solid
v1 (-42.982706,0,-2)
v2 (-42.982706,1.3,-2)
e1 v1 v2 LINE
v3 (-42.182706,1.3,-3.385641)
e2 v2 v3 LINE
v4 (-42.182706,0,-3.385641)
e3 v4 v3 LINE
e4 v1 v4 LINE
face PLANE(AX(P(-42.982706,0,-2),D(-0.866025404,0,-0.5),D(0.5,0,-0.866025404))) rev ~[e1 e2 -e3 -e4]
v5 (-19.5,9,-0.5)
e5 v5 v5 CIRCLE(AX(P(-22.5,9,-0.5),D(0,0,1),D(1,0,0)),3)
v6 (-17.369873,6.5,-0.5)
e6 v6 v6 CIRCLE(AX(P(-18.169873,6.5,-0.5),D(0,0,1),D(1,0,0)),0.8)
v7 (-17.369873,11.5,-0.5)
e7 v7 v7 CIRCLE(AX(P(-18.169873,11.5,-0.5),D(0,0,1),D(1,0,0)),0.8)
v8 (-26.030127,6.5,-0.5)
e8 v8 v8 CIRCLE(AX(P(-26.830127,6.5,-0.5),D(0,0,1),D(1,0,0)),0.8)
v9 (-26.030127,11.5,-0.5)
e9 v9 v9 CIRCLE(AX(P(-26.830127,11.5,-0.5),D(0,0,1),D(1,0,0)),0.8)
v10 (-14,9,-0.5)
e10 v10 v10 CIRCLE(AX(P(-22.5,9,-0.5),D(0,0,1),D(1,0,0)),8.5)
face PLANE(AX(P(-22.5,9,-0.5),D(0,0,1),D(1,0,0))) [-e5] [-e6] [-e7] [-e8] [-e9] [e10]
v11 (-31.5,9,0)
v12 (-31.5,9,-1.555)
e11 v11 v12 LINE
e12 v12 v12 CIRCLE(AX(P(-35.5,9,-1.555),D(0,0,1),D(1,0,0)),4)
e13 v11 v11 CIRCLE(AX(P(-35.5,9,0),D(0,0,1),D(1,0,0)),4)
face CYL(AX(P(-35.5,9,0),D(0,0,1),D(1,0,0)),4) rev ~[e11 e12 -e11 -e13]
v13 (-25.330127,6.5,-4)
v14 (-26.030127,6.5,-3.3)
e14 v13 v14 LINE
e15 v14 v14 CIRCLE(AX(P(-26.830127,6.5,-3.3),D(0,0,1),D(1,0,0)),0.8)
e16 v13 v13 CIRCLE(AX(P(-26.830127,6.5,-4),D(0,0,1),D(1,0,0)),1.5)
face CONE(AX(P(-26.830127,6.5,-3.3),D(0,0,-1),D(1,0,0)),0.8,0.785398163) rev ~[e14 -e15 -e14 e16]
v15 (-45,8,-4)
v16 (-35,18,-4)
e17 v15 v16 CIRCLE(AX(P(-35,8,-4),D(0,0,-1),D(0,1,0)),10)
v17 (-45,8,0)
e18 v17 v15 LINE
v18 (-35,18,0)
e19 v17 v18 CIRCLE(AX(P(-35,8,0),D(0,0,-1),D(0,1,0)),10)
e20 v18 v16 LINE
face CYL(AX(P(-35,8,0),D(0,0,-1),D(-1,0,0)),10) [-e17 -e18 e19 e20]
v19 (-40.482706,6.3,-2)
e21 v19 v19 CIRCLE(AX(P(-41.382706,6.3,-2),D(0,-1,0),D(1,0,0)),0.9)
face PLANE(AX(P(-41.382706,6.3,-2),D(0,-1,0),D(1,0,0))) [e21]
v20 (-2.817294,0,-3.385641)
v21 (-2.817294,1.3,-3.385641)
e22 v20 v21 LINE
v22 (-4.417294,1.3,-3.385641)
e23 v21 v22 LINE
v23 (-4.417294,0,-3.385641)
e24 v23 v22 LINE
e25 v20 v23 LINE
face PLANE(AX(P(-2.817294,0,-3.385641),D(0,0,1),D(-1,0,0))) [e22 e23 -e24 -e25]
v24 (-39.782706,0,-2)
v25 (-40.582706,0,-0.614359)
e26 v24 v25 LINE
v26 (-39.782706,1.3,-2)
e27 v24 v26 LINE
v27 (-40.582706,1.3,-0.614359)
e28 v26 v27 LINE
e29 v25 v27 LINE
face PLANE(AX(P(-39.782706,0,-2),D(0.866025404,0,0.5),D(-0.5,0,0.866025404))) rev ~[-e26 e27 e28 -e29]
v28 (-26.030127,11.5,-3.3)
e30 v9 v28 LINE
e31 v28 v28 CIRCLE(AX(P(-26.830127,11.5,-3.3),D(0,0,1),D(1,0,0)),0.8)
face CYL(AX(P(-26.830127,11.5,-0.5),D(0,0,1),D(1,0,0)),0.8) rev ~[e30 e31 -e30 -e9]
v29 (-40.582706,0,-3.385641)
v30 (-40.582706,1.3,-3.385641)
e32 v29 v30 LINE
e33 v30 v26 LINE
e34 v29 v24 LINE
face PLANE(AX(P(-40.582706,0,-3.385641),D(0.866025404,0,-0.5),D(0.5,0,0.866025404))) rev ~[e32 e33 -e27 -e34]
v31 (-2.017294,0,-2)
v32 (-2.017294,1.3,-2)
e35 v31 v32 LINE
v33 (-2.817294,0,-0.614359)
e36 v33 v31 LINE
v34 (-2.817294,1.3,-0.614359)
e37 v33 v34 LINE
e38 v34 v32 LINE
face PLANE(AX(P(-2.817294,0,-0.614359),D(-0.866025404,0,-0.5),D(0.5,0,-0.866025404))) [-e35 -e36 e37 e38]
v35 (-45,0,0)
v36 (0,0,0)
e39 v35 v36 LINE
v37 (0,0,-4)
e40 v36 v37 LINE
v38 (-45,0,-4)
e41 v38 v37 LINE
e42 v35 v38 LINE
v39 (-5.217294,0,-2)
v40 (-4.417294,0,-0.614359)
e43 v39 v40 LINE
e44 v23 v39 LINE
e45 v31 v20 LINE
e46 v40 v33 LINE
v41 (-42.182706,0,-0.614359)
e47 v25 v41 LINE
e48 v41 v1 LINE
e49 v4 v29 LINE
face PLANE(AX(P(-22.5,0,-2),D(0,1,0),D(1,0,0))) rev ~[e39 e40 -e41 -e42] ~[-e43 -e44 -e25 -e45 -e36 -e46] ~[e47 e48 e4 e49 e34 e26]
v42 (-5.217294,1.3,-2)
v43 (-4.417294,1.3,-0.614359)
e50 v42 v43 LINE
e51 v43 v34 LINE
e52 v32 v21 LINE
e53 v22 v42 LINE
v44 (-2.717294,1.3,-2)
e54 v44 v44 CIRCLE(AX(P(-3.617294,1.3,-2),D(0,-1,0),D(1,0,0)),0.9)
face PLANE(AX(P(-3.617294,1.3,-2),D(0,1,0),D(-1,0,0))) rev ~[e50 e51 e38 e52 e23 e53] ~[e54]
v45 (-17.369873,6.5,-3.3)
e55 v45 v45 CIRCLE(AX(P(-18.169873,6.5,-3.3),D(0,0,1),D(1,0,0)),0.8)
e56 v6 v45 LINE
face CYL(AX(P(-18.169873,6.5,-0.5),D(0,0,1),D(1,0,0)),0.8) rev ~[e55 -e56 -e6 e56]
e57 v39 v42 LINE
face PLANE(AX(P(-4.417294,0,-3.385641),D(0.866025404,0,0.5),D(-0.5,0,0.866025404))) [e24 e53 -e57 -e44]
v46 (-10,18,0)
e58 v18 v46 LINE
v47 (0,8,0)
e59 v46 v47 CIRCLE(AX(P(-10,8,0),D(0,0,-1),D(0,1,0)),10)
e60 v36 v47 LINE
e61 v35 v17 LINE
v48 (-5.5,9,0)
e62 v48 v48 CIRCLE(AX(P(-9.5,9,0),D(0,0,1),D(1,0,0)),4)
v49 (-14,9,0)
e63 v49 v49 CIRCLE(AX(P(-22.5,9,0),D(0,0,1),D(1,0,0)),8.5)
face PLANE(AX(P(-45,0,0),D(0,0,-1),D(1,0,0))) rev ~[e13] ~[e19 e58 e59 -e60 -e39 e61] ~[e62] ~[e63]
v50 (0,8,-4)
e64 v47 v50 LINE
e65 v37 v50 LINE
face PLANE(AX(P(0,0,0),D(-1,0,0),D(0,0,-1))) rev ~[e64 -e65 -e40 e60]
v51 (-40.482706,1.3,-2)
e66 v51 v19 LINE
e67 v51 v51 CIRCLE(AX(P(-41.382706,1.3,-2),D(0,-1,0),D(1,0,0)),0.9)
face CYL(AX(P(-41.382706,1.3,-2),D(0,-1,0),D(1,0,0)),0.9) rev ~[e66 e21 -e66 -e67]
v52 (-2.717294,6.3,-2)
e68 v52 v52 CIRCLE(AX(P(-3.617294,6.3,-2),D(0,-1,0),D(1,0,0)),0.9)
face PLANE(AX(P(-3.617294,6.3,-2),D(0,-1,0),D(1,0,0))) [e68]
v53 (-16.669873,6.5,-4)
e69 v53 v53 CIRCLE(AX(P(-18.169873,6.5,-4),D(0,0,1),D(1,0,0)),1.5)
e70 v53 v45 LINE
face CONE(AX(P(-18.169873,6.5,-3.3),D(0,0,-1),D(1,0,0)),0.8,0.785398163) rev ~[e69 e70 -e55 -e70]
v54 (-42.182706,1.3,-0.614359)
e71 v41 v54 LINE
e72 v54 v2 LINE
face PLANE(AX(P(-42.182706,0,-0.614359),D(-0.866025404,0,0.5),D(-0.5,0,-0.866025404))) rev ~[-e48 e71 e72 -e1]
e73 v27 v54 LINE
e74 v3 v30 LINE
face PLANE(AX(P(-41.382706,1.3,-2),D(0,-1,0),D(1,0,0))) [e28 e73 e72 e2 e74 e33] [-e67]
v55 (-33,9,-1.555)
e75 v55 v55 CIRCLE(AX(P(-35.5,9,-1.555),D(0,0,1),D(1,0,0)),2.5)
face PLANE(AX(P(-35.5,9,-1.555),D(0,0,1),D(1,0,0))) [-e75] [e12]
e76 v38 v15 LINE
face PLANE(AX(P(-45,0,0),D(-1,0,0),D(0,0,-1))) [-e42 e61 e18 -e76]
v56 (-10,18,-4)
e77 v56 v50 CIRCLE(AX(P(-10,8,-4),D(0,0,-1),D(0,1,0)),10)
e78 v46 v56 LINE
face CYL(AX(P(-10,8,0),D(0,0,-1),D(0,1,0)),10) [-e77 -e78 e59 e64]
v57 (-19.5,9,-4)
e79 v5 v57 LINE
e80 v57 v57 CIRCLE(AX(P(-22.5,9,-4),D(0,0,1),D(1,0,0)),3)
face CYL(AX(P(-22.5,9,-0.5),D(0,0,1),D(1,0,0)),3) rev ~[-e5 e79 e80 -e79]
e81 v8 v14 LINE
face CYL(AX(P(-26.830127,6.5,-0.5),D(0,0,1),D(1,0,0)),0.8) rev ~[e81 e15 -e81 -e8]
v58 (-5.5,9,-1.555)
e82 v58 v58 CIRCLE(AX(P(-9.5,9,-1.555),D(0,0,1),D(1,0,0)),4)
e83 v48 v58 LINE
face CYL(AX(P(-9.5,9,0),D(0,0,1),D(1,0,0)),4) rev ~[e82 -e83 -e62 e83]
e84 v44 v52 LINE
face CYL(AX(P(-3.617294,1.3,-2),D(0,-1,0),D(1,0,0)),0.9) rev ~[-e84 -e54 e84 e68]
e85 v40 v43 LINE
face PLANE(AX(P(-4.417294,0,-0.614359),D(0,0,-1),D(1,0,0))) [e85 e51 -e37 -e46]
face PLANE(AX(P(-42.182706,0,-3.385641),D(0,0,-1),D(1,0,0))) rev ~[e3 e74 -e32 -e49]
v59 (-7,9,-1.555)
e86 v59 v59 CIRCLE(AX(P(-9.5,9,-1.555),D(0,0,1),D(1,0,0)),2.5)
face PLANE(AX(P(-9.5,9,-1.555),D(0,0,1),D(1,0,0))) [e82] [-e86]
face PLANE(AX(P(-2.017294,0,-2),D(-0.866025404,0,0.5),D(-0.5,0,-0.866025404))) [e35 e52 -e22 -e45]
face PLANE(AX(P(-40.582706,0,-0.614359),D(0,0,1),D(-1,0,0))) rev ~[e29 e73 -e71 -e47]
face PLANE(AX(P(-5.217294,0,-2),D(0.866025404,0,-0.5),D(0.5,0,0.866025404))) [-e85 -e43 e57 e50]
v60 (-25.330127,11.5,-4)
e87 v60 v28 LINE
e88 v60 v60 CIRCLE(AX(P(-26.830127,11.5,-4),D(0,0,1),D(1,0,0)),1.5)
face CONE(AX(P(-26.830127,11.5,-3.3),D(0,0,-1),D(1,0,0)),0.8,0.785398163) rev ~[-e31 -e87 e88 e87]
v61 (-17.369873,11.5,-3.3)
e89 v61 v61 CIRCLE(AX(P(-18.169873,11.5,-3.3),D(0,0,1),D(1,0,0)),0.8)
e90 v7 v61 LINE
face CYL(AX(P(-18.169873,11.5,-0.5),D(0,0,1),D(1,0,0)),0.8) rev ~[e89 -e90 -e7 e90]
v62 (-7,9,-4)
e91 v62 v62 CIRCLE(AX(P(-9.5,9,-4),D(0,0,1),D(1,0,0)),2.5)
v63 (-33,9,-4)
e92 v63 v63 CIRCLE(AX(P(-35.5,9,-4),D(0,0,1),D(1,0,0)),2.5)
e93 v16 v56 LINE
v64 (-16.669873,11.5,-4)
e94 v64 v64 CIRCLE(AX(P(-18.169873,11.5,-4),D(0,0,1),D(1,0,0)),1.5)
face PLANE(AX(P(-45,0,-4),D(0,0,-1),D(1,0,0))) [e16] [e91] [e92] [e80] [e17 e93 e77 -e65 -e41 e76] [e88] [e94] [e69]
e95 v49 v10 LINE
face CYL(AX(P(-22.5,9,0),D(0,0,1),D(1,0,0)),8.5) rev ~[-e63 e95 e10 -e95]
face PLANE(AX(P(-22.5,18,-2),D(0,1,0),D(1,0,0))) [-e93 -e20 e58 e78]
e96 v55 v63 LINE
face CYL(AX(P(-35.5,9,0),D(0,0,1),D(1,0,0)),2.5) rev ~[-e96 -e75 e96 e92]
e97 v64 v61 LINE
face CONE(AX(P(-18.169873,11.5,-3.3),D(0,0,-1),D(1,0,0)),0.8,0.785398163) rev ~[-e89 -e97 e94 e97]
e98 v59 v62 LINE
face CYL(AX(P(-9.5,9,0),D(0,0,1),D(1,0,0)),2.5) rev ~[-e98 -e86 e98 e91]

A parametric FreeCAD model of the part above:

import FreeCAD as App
import Part
import Sketcher
from FreeCAD import Vector
Q = App.Units.Quantity


def edges_at(feature, points):
    """Names of the edges that pass closest to the given points."""
    edges = feature.Shape.Edges
    near = lambda p: min(range(len(edges)), key=lambda i: edges[i].distToShape(Part.Vertex(*p))[0])
    return sorted({f"Edge{near(p) + 1}" for p in points})

doc = App.newDocument("Part")
body = doc.addObject("PartDesign::Body", "Body")

sketch1 = body.newObject("Sketcher::SketchObject", "Sketch")
sketch1.AttachmentSupport = (doc.getObject("XZ_Plane"), [""])
sketch1.MapMode = "FlatFace"
sketch1.addGeometry([
    Part.LineSegment(Vector(-45, -4, 0), Vector(-45, 0, 0)),
    Part.LineSegment(Vector(-45, 0, 0), Vector(0, 0, 0)),
    Part.LineSegment(Vector(0, 0, 0), Vector(0, -4, 0)),
    Part.LineSegment(Vector(0, -4, 0), Vector(-45, -4, 0)),
], False)
sketch1.addConstraint([
    Sketcher.Constraint("Coincident", 0, 2, 1, 1),
    Sketcher.Constraint("Coincident", 1, 2, 2, 1),
    Sketcher.Constraint("Coincident", 2, 2, 3, 1),
    Sketcher.Constraint("Coincident", 3, 2, 0, 1),
    Sketcher.Constraint("Vertical", 0),
    Sketcher.Constraint("Horizontal", 1),
    Sketcher.Constraint("Vertical", 2),
    Sketcher.Constraint("Horizontal", 3),
    Sketcher.Constraint("Coincident", 1, 2, -1, 1),
    Sketcher.Constraint("DistanceX", 1, 1, 1, 2, 45.0),
    Sketcher.Constraint("DistanceY", 0, 1, 0, 2, 4.0),
])
pad1 = body.newObject("PartDesign::Pad", "Pad")
pad1.Profile = sketch1
pad1.Length = 18
pad1.Reversed = True

sketch2 = body.newObject("Sketcher::SketchObject", "Sketch001")
sketch2.AttachmentSupport = (doc.getObject("XY_Plane"), [""])
sketch2.MapMode = "FlatFace"
sketch2.addGeometry(Part.Circle(Vector(-22, 9, 0), Vector(0, 0, 1), 8), False)
sketch2.addConstraint([
    Sketcher.Constraint("Diameter", 0, 17.0),
    Sketcher.Constraint("DistanceY", -1, 1, 0, 3, 9.0),
    Sketcher.Constraint("DistanceX", 0, 3, -1, 1, 22.5),
])
pocket1 = body.newObject("PartDesign::Pocket", "Pocket")
pocket1.Profile = sketch2
pocket1.Length = 0.5

sketch3 = body.newObject("Sketcher::SketchObject", "Sketch002")
sketch3.AttachmentSupport = (doc.getObject("XY_Plane"), [""])
sketch3.MapMode = "FlatFace"
sketch3.AttachmentOffset = App.Placement(Vector(0, 0, -0.5), App.Rotation())
sketch3.addGeometry(Part.Circle(Vector(-22.5, 9, 0), Vector(0, 0, 1), 3), False)
sketch3.addConstraint([
    Sketcher.Constraint("Diameter", 0, 6.0),
    Sketcher.Constraint("DistanceY", -1, 1, 0, 3, 9.0),
    Sketcher.Constraint("DistanceX", 0, 3, -1, 1, 22.5),
])
pocket2 = body.newObject("PartDesign::Pocket", "Pocket001")
pocket2.Profile = sketch3
pocket2.Type = "ThroughAll"

sketch4 = body.newObject("Sketcher::SketchObject", "Sketch003")
sketch4.AttachmentSupport = (doc.getObject("XY_Plane"), [""])
sketch4.MapMode = "FlatFace"
sketch4.addGeometry([
    Part.Circle(Vector(-35.5, 9, 0), Vector(0, 0, 1), 2.5),
    Part.Circle(Vector(-9.5, 9, 0), Vector(0, 0, 1), 2.5),
], False)
sketch4.addConstraint([
    Sketcher.Constraint("Equal", 0, 1),
    Sketcher.Constraint("Horizontal", 0, 3, 1, 3),
    Sketcher.Constraint("Diameter", 0, 5.0),
    Sketcher.Constraint("DistanceY", -1, 1, 0, 3, 9.0),
    Sketcher.Constraint("DistanceX", 0, 3, 1, 3, 26.0),
    Sketcher.Constraint("DistanceX", 0, 3, -1, 1, 35.5),
])
pocket3 = body.newObject("PartDesign::Pocket", "Pocket002")
pocket3.Profile = sketch4
pocket3.Type = "ThroughAll"

sketch5 = body.newObject("Sketcher::SketchObject", "Sketch004")
sketch5.AttachmentSupport = (doc.getObject("XY_Plane"), [""])
sketch5.MapMode = "FlatFace"
sketch5.AttachmentOffset = App.Placement(Vector(0, 0, -0.5), App.Rotation())
sketch5.addGeometry([
    Part.Circle(Vector(-18.2, 11.5, 0), Vector(0, 0, 1), 0.8),
    Part.Circle(Vector(-18.2, 6.5, 0), Vector(0, 0, 1), 0.8),
    Part.Circle(Vector(-26.8, 6.5, 0), Vector(0, 0, 1), 0.8),
    Part.Circle(Vector(-26.8, 11.5, 0), Vector(0, 0, 1), 0.8),
], False)
sketch5.addConstraint([
    Sketcher.Constraint("Equal", 0, 1),
    Sketcher.Constraint("Equal", 1, 2),
    Sketcher.Constraint("Equal", 2, 3),
    Sketcher.Constraint("Horizontal", 1, 3, 2, 3),
    Sketcher.Constraint("Horizontal", 0, 3, 3, 3),
    Sketcher.Constraint("Vertical", 0, 3, 1, 3),
    Sketcher.Constraint("Vertical", 2, 3, 3, 3),
    Sketcher.Constraint("Diameter", 0, 1.6),
    Sketcher.Constraint("DistanceY", 1, 3, 0, 3, 5.0),
    Sketcher.Constraint("DistanceY", -1, 1, 0, 3, 11.5),
    Sketcher.Constraint("DistanceX", 0, 3, -1, 1, 18.169873),
    Sketcher.Constraint("DistanceX", 2, 3, -1, 1, 26.830127),
])
pocket4 = body.newObject("PartDesign::Pocket", "Pocket003")
pocket4.Profile = sketch5
pocket4.Type = "ThroughAll"
doc.recompute()

fillet = body.newObject("PartDesign::Fillet", "Fillet")
fillet.Base = (pocket4, edges_at(pocket4, [(-45, 18, -2), (0, 18, -2)]))
fillet.Radius = 10

sketch6 = body.newObject("Sketcher::SketchObject", "Sketch005")
sketch6.AttachmentSupport = (doc.getObject("XY_Plane"), [""])
sketch6.MapMode = "FlatFace"
sketch6.addGeometry([
    Part.Circle(Vector(-35.5, 9, 0), Vector(0, 0, 1), 4),
    Part.Circle(Vector(-9.5, 9, 0), Vector(0, 0, 1), 4),
], False)
sketch6.addConstraint([
    Sketcher.Constraint("Equal", 0, 1),
    Sketcher.Constraint("Horizontal", 0, 3, 1, 3),
    Sketcher.Constraint("Diameter", 0, 8.0),
    Sketcher.Constraint("DistanceY", -1, 1, 0, 3, 9.0),
    Sketcher.Constraint("DistanceX", 0, 3, 1, 3, 26.0),
    Sketcher.Constraint("DistanceX", 0, 3, -1, 1, 35.5),
])
pocket5 = body.newObject("PartDesign::Pocket", "Pocket004")
pocket5.Profile = sketch6
pocket5.Length = 1.555

sketch7 = body.newObject("Sketcher::SketchObject", "Sketch006")
sketch7.AttachmentSupport = (doc.getObject("XZ_Plane"), [""])
sketch7.MapMode = "FlatFace"
sketch7.addGeometry([
    Part.LineSegment(Vector(-4.4, -0.6, 0), Vector(-5.2, -2, 0)),
    Part.LineSegment(Vector(-5.2, -2, 0), Vector(-4.4, -3.4, 0)),
    Part.LineSegment(Vector(-4.4, -3.4, 0), Vector(-2.8, -3.4, 0)),
    Part.LineSegment(Vector(-2.8, -3.4, 0), Vector(-2, -2, 0)),
    Part.LineSegment(Vector(-2, -2, 0), Vector(-2.8, -0.6, 0)),
    Part.LineSegment(Vector(-2.8, -0.6, 0), Vector(-4.4, -0.6, 0)),
    Part.LineSegment(Vector(-39.8, -2, 0), Vector(-40.6, -0.6, 0)),
    Part.LineSegment(Vector(-40.6, -0.6, 0), Vector(-42.2, -0.6, 0)),
    Part.LineSegment(Vector(-42.2, -0.6, 0), Vector(-43, -2, 0)),
    Part.LineSegment(Vector(-43, -2, 0), Vector(-42.2, -3.4, 0)),
    Part.LineSegment(Vector(-42.2, -3.4, 0), Vector(-40.6, -3.4, 0)),
    Part.LineSegment(Vector(-40.6, -3.4, 0), Vector(-39.8, -2, 0)),
], False)
sketch7.addConstraint([
    Sketcher.Constraint("Coincident", 0, 2, 1, 1),
    Sketcher.Constraint("Coincident", 1, 2, 2, 1),
    Sketcher.Constraint("Coincident", 2, 2, 3, 1),
    Sketcher.Constraint("Coincident", 3, 2, 4, 1),
    Sketcher.Constraint("Coincident", 4, 2, 5, 1),
    Sketcher.Constraint("Coincident", 5, 2, 0, 1),
    Sketcher.Constraint("Coincident", 6, 2, 7, 1),
    Sketcher.Constraint("Coincident", 7, 2, 8, 1),
    Sketcher.Constraint("Coincident", 8, 2, 9, 1),
    Sketcher.Constraint("Coincident", 9, 2, 10, 1),
    Sketcher.Constraint("Coincident", 10, 2, 11, 1),
    Sketcher.Constraint("Coincident", 11, 2, 6, 1),
    Sketcher.Constraint("Horizontal", 2),
    Sketcher.Constraint("Horizontal", 5),
    Sketcher.Constraint("Horizontal", 7),
    Sketcher.Constraint("Horizontal", 10),
    Sketcher.Constraint("Parallel", 0, 3),
    Sketcher.Constraint("Parallel", 1, 4),
    Sketcher.Constraint("Parallel", 4, 6),
    Sketcher.Constraint("Parallel", 3, 8),
    Sketcher.Constraint("Parallel", 6, 9),
    Sketcher.Constraint("Parallel", 8, 11),
    Sketcher.Constraint("Horizontal", 0, 2, 3, 2),
    Sketcher.Constraint("Horizontal", 5, 2, 6, 2),
    Sketcher.Constraint("Horizontal", 3, 2, 8, 2),
    Sketcher.Constraint("Horizontal", 2, 2, 9, 2),
    Sketcher.Constraint("Horizontal", 8, 2, 11, 2),
    Sketcher.Constraint("Vertical", 2, 2, 4, 2),
    Sketcher.Constraint("Vertical", 1, 2, 5, 2),
    Sketcher.Constraint("Equal", 5, 7),
    Sketcher.Constraint("Angle", 0, Q("-120 deg")),
    Sketcher.Constraint("DistanceX", 2, 1, 2, 2, 1.6),
    Sketcher.Constraint("DistanceY", 0, 2, -1, 1, 2.0),
    Sketcher.Constraint("Distance", 0, 1.6),
    Sketcher.Constraint("DistanceX", 0, 2, -1, 1, 5.217294),
    Sketcher.Constraint("DistanceX", 6, 2, -1, 1, 40.582706),
])
pocket6 = body.newObject("PartDesign::Pocket", "Pocket005")
pocket6.Profile = sketch7
pocket6.Length = 1.3

sketch8 = body.newObject("Sketcher::SketchObject", "Sketch007")
sketch8.AttachmentSupport = (doc.getObject("XZ_Plane"), [""])
sketch8.MapMode = "FlatFace"
sketch8.AttachmentOffset = App.Placement(Vector(0, 0, -1.3), App.Rotation())
sketch8.addGeometry(Part.Circle(Vector(-41.4, -2, 0), Vector(0, 0, 1), 0.9), False)
sketch8.addConstraint([
    Sketcher.Constraint("Diameter", 0, 1.8),
    Sketcher.Constraint("DistanceY", 0, 3, -1, 1, 2.0),
    Sketcher.Constraint("DistanceX", 0, 3, -1, 1, 41.382706),
])
pocket7 = body.newObject("PartDesign::Pocket", "Pocket006")
pocket7.Profile = sketch8
pocket7.Length = 5

sketch9 = body.newObject("Sketcher::SketchObject", "Sketch008")
sketch9.AttachmentSupport = (doc.getObject("XZ_Plane"), [""])
sketch9.MapMode = "FlatFace"
sketch9.AttachmentOffset = App.Placement(Vector(0, 0, -1.3), App.Rotation())
sketch9.addGeometry(Part.Circle(Vector(-3.6, -2, 0), Vector(0, 0, 1), 0.9), False)
sketch9.addConstraint([
    Sketcher.Constraint("Diameter", 0, 1.8),
    Sketcher.Constraint("DistanceY", 0, 3, -1, 1, 2.0),
    Sketcher.Constraint("DistanceX", 0, 3, -1, 1, 3.617294),
])
pocket8 = body.newObject("PartDesign::Pocket", "Pocket007")
pocket8.Profile = sketch9
pocket8.Length = 5
doc.recompute()

chamfer = body.newObject("PartDesign::Chamfer", "Chamfer")
chamfer.Base = (pocket8, edges_at(pocket8, [
    (-27.63, 11.5, -4),
    (-18.97, 11.5, -4),
    (-18.97, 6.5, -4),
    (-27.63, 6.5, -4),
]))
chamfer.Size = 0.7

doc.recompute()
